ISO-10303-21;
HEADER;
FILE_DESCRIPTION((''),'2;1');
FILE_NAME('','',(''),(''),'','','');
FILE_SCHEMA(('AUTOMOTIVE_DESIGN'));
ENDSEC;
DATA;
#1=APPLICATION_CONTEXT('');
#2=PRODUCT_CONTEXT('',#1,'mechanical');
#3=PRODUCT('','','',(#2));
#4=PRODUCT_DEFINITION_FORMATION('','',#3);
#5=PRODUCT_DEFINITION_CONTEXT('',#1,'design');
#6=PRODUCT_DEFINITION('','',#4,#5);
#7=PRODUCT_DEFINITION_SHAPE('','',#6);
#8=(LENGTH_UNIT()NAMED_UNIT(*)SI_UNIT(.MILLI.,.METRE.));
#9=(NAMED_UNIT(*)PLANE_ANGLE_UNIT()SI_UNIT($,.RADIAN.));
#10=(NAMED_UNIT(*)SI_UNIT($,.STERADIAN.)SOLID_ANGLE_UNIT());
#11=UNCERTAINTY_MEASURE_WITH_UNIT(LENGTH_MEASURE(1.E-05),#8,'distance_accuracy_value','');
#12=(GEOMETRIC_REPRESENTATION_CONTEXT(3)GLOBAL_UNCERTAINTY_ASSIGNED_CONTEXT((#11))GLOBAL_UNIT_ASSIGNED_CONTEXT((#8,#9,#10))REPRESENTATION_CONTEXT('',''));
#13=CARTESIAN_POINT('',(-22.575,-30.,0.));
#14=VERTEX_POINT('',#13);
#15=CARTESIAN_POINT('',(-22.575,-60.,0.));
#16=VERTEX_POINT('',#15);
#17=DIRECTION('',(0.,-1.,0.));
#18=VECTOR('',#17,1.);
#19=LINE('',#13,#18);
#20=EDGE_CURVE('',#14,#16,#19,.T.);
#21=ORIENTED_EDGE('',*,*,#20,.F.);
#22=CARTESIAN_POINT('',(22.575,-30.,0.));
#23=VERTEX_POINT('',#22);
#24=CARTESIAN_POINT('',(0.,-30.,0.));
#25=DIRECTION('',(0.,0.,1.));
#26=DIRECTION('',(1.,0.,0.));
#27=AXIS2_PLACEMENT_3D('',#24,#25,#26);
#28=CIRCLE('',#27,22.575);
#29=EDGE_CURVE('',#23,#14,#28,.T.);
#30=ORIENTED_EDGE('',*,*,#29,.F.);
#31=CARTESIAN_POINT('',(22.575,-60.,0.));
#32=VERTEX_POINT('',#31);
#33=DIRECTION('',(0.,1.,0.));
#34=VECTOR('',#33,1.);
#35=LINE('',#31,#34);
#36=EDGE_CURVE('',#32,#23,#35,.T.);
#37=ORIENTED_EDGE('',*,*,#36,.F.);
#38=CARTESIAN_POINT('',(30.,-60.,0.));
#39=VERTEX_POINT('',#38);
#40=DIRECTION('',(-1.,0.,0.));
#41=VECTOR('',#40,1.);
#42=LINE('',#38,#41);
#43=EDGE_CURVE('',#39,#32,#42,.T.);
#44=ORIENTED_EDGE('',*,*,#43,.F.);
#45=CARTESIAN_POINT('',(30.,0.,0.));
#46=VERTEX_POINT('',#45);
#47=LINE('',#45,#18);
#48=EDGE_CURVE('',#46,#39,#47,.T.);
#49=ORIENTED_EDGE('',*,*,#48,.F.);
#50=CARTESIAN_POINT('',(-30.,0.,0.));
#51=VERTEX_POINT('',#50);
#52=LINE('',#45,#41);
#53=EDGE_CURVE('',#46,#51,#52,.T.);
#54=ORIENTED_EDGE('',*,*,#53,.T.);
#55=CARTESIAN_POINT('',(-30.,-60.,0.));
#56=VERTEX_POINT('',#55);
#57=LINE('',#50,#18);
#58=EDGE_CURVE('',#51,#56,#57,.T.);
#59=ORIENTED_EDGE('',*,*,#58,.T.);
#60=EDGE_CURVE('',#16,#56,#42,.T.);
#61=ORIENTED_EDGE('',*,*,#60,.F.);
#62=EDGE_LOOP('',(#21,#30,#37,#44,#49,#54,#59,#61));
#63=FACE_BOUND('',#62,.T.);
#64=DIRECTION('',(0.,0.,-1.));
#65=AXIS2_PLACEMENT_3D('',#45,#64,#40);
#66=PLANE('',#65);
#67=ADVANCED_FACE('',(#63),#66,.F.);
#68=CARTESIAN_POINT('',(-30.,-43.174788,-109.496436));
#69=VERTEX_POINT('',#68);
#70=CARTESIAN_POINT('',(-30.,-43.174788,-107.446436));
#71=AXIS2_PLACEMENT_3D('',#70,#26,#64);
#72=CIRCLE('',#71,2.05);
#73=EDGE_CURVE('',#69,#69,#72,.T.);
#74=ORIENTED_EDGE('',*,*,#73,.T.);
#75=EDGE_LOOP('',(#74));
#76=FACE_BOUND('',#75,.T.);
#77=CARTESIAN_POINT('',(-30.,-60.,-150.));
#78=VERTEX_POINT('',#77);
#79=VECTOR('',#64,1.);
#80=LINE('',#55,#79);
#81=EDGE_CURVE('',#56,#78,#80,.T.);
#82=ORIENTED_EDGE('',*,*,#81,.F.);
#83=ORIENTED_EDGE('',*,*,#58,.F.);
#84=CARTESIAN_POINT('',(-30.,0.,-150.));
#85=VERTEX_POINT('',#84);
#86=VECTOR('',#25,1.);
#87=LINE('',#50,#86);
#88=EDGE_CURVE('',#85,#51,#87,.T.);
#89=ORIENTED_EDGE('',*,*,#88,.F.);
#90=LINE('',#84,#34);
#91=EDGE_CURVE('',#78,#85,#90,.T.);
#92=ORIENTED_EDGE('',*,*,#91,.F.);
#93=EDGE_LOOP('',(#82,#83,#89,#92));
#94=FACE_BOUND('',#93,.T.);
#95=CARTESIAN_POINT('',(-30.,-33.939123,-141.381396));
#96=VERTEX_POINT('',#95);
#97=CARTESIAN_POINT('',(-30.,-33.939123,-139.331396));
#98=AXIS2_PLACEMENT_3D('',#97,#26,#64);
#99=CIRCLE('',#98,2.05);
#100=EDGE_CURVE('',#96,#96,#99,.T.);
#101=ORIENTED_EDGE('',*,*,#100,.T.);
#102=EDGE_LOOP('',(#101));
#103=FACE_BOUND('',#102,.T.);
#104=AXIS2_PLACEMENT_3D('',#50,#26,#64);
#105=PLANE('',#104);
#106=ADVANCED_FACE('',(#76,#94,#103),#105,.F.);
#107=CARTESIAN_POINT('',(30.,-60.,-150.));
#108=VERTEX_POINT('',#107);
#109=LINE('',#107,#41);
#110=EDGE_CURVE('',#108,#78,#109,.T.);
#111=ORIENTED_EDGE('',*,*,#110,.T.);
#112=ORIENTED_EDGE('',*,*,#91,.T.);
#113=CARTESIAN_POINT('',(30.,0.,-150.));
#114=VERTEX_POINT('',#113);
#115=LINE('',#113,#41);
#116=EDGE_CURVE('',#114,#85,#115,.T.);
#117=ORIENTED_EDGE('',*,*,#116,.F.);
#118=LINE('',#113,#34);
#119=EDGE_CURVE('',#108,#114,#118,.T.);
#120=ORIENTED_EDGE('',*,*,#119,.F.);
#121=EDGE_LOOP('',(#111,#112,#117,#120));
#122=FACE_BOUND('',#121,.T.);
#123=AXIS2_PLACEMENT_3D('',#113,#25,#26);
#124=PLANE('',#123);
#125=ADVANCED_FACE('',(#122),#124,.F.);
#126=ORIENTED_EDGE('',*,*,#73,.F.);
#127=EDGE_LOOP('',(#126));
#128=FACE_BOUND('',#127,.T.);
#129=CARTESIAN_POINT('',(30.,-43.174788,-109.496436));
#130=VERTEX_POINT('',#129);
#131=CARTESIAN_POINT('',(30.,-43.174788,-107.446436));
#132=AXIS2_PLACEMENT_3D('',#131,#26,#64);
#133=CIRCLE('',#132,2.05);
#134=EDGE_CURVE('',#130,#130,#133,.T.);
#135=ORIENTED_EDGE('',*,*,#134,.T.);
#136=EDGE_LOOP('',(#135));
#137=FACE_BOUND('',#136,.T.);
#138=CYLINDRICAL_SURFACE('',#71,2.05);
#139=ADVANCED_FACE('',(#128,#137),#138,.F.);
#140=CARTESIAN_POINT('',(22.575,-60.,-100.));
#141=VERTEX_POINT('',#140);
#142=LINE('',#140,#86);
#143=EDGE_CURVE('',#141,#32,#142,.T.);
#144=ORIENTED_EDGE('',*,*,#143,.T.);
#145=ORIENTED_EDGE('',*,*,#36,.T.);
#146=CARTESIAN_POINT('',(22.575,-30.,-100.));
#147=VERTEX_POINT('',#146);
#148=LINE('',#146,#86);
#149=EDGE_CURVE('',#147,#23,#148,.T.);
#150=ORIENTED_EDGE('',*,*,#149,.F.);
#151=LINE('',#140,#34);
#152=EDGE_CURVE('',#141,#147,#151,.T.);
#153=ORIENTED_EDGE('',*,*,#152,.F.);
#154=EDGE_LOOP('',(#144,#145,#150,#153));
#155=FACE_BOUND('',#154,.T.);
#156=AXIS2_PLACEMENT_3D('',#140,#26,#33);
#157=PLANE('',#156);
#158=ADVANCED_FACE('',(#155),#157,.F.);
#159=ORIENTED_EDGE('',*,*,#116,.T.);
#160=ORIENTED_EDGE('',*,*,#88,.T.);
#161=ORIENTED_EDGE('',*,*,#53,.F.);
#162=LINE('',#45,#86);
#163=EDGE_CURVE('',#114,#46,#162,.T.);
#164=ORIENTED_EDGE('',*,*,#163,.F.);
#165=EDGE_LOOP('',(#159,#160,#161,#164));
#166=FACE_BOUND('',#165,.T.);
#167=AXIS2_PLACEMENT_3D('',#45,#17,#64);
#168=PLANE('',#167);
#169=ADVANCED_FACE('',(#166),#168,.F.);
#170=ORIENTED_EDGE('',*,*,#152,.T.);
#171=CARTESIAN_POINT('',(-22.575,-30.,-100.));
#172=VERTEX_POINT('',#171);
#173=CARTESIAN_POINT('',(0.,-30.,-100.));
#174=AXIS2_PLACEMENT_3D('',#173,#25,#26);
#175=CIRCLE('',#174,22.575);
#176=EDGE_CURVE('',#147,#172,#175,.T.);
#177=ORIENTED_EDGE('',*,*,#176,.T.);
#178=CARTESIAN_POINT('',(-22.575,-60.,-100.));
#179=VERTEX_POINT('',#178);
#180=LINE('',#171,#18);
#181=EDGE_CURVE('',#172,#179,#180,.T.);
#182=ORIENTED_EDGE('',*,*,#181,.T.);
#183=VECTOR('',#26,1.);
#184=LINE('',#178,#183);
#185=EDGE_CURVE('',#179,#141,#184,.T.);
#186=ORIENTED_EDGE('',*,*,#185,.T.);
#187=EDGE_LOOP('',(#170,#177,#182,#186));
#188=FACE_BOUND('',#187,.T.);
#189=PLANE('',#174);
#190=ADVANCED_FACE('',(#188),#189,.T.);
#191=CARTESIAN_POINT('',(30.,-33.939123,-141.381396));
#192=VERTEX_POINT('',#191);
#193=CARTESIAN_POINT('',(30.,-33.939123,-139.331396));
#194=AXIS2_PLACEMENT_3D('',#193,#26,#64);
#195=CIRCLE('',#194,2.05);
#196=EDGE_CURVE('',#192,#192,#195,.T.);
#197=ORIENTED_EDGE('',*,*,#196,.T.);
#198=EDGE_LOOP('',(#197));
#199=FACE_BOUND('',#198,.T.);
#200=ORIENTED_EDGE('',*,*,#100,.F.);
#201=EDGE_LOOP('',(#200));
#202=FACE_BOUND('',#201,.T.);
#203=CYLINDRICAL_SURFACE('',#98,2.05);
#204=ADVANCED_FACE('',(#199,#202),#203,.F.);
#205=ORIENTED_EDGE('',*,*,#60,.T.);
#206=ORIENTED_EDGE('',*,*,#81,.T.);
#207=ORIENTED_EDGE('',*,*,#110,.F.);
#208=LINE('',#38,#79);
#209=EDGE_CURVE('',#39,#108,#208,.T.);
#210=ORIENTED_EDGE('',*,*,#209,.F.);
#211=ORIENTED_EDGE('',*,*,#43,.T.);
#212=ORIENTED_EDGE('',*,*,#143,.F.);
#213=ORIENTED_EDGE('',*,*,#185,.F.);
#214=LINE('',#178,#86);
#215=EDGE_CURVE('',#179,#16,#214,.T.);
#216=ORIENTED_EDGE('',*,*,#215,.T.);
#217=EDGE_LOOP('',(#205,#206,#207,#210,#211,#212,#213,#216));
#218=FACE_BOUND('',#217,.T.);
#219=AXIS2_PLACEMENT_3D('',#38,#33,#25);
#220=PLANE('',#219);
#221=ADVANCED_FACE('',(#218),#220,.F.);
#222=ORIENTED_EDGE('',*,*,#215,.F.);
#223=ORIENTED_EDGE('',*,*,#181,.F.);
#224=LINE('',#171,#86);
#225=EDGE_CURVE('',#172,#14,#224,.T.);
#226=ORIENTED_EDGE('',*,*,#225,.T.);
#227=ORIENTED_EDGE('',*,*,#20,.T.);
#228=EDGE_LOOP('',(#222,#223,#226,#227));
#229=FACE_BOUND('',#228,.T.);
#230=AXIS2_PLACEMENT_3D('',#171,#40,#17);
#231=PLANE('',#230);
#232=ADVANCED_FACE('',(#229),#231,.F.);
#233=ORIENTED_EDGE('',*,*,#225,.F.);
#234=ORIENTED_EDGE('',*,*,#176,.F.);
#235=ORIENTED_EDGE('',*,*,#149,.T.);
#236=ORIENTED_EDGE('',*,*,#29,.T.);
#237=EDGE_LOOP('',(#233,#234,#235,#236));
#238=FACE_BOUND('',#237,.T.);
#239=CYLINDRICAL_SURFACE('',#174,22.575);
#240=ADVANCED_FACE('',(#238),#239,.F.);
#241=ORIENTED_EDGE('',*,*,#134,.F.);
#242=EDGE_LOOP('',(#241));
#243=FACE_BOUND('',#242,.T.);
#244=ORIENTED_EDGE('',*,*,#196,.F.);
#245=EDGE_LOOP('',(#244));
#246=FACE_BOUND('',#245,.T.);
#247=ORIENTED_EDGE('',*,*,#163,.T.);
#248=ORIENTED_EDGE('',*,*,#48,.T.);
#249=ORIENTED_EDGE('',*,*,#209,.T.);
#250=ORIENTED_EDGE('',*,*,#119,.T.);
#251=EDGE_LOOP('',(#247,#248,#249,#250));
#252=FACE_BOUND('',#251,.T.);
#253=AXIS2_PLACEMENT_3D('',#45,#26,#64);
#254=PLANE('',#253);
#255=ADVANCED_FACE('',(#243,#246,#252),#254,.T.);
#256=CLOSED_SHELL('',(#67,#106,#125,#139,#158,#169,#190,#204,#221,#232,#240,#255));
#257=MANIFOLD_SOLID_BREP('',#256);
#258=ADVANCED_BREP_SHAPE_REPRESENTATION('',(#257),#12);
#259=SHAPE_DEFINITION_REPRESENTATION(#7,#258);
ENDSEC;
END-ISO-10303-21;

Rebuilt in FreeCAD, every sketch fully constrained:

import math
import FreeCAD as App
import Part
import Sketcher
Q = App.Units.Quantity


def add_polygon(sketch, points):
    """Adds a closed chain of lines whose ends are joined by coincident constraints."""
    first, n = sketch.GeometryCount, len(points)
    for a, b in zip(points, points[1:] + points[:1]):
        sketch.addGeometry(Part.LineSegment(App.Vector(*a, 0), App.Vector(*b, 0)), False)
    for i in range(n):
        sketch.addConstraint(Sketcher.Constraint("Coincident", first + i, 2, first + (i + 1) % n, 1))

doc = App.newDocument("Part")
body = doc.addObject("PartDesign::Body", "Body")

sketch1 = body.newObject("Sketcher::SketchObject", "Sketch")
sketch1.AttachmentSupport = (doc.getObject("YZ_Plane"), [""])
sketch1.MapMode = "FlatFace"
add_polygon(sketch1, [(0, 0), (-60, 0), (-60, -150), (0, -150)])
sketch1.addConstraint([
    Sketcher.Constraint("Horizontal", 0),
    Sketcher.Constraint("Vertical", 1),
    Sketcher.Constraint("Horizontal", 2),
    Sketcher.Constraint("Vertical", 3),
    Sketcher.Constraint("Coincident", 3, 2, -1, 1),
    Sketcher.Constraint("DistanceX", 0, 2, 0, 1, Q("60 mm")),
    Sketcher.Constraint("DistanceY", 1, 2, 1, 1, Q("150 mm")),
])
pad1 = body.newObject("PartDesign::Pad", "Pad")
pad1.Profile = sketch1
pad1.Length = 60
pad1.Midplane = True

sketch2 = body.newObject("Sketcher::SketchObject", "Sketch001")
sketch2.AttachmentSupport = (doc.getObject("XY_Plane"), [""])
sketch2.MapMode = "FlatFace"
sketch2.addGeometry([
    Part.LineSegment(App.Vector(-23, -30, 0), App.Vector(-23, -60, 0)),
    Part.LineSegment(App.Vector(-23, -60, 0), App.Vector(23, -60, 0)),
    Part.LineSegment(App.Vector(23, -60, 0), App.Vector(23, -30, 0)),
    Part.ArcOfCircle(Part.Circle(App.Vector(0, -30, 0), App.Vector(0, 0, 1), 23), math.radians(0), math.radians(180)),
], False)
sketch2.addConstraint([
    Sketcher.Constraint("Coincident", 0, 2, 1, 1),
    Sketcher.Constraint("Coincident", 1, 2, 2, 1),
    Sketcher.Constraint("Tangent", 2, 2, 3, 1),
    Sketcher.Constraint("Tangent", 3, 2, 0, 1),
    Sketcher.Constraint("Vertical", 0),
    Sketcher.Constraint("Horizontal", 1),
    Sketcher.Constraint("Vertical", 2),
    Sketcher.Constraint("PointOnObject", 3, 3, -2),
    Sketcher.Constraint("DistanceY", 0, 2, 0, 1, Q("30 mm")),
    Sketcher.Constraint("DistanceY", 3, 3, -1, 1, Q("30 mm")),
    Sketcher.Constraint("Radius", 3, Q("22.575 mm")),
])
pocket1 = body.newObject("PartDesign::Pocket", "Pocket")
pocket1.Profile = sketch2
pocket1.Length = 100

sketch3 = body.newObject("Sketcher::SketchObject", "Sketch002")
sketch3.AttachmentSupport = (doc.getObject("YZ_Plane"), [""])
sketch3.MapMode = "FlatFace"
sketch3.addGeometry([
    Part.Circle(App.Vector(-43.2, -107.4, 0), App.Vector(0, 0, 1), 2),
    Part.Circle(App.Vector(-33.9, -139.3, 0), App.Vector(0, 0, 1), 2),
], False)
sketch3.addConstraint([
    Sketcher.Constraint("Equal", 0, 1),
    Sketcher.Constraint("Diameter", 0, Q("4.1 mm")),
    Sketcher.Constraint("DistanceY", 1, 3, 0, 3, Q("31.88496 mm")),
    Sketcher.Constraint("DistanceX", 0, 3, -1, 1, Q("43.174788 mm")),
    Sketcher.Constraint("DistanceY", 0, 3, -1, 1, Q("107.446436 mm")),
    Sketcher.Constraint("DistanceX", 1, 3, -1, 1, Q("33.939123 mm")),
])
pocket2 = body.newObject("PartDesign::Pocket", "Pocket001")
pocket2.Profile = sketch3
pocket2.Type = "ThroughAll"
pocket2.Midplane = True

doc.recompute()
